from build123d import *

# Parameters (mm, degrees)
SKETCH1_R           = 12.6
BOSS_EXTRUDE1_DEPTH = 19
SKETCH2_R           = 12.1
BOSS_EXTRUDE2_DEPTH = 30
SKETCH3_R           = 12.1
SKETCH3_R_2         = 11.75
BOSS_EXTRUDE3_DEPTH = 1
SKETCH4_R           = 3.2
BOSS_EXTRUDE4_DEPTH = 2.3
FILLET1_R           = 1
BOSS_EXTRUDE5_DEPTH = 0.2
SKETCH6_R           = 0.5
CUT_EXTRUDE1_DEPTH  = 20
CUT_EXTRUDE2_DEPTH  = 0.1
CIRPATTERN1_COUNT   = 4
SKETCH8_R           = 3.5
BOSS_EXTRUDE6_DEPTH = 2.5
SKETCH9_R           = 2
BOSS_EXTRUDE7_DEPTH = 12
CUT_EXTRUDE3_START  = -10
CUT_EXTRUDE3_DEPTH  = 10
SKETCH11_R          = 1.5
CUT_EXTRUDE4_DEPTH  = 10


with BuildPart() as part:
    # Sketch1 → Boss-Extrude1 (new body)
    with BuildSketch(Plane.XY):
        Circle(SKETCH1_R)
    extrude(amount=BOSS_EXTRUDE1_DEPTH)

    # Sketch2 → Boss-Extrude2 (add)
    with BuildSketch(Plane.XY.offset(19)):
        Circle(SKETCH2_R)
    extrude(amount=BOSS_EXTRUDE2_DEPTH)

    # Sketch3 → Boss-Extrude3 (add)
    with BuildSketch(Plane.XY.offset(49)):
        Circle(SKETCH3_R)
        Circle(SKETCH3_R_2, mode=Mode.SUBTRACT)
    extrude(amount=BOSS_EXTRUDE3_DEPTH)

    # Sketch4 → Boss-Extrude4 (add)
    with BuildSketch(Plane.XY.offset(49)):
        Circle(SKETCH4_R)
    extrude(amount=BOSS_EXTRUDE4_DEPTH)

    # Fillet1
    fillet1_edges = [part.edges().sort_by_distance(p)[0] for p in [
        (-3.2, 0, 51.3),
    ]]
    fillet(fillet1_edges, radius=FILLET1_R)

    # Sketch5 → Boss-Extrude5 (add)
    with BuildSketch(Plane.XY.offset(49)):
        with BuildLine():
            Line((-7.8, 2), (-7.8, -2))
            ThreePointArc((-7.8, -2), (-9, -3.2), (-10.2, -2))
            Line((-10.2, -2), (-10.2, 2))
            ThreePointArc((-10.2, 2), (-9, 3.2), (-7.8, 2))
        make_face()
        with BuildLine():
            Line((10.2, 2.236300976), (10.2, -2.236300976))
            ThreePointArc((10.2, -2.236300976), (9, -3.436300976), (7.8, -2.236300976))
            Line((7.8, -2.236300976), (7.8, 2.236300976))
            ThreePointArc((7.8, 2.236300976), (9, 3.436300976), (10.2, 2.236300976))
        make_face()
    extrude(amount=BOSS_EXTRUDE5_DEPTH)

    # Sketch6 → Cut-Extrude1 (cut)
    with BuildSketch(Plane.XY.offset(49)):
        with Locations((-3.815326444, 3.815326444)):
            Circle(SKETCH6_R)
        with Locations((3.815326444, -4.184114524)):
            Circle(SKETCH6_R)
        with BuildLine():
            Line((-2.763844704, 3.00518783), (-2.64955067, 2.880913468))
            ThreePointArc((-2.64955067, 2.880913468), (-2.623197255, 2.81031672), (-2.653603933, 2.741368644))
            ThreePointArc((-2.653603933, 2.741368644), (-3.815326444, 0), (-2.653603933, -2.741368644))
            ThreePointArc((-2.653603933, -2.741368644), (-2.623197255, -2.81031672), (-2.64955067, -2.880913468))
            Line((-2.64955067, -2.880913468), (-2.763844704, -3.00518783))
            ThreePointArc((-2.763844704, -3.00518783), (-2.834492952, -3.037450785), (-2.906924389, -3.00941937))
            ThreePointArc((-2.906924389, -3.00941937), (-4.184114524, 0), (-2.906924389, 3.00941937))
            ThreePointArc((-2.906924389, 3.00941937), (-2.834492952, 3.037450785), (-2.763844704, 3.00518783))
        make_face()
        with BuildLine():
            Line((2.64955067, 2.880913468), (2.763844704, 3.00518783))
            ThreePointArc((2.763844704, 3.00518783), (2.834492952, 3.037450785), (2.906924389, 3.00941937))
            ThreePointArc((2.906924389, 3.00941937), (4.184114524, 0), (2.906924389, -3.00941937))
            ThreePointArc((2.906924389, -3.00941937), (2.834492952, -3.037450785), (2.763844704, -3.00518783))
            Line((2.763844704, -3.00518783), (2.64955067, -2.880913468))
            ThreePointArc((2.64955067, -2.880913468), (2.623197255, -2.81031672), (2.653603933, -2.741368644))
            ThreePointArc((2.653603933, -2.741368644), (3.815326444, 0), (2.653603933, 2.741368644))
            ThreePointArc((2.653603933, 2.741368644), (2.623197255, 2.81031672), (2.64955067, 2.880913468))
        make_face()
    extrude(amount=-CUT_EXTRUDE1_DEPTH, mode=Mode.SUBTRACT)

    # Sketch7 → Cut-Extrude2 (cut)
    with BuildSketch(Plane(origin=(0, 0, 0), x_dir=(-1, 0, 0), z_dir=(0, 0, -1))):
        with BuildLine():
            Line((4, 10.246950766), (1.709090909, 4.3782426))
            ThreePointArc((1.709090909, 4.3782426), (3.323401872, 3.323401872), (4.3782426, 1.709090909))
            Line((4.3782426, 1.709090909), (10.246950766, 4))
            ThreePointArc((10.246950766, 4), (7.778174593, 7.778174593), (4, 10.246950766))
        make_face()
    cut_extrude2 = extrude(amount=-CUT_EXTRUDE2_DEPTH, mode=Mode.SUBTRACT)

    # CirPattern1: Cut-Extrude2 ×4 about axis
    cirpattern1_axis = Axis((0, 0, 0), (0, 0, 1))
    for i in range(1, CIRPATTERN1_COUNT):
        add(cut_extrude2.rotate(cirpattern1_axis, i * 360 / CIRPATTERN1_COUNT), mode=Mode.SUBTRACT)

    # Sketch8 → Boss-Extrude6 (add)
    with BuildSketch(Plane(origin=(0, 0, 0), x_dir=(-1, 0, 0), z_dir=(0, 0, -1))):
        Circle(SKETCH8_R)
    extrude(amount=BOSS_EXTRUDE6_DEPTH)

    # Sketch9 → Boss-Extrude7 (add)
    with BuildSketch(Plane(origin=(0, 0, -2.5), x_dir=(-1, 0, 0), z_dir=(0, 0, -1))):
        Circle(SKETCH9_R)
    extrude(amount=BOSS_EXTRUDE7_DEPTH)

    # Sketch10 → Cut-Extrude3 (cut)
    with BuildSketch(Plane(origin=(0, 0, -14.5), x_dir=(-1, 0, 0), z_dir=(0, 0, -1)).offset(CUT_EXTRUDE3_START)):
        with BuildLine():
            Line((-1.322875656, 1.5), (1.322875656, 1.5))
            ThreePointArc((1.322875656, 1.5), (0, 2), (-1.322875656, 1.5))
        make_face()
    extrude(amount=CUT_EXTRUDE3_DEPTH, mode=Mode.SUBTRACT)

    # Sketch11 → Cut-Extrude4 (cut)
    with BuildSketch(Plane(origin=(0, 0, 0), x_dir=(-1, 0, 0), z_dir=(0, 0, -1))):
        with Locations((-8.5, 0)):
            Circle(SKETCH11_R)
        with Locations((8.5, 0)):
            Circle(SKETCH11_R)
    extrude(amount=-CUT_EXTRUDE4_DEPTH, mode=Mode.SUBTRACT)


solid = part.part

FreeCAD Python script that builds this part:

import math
import FreeCAD as App
import Part
import Sketcher
from FreeCAD import Vector
Q = App.Units.Quantity


def edges_at(feature, points):
    """Names of the edges that pass closest to the given points."""
    edges = feature.Shape.Edges
    near = lambda p: min(range(len(edges)), key=lambda i: edges[i].distToShape(Part.Vertex(*p))[0])
    return sorted({f"Edge{near(p) + 1}" for p in points})

doc = App.newDocument("Part")
params = doc.addObject("Spreadsheet::Sheet", "Params")
for row, (alias, value) in enumerate([
    ("sketch1_diameter", "25.2 mm"),
    ("pad1_length", "19 mm"),
    ("sketch2_diameter", "24.2 mm"),
    ("pad2_length", "30 mm"),
    ("sketch3_diameter", "24.2 mm"),
    ("sketch3_diameter2", "23.5 mm"),
    ("pad3_length", "1 mm"),
    ("sketch4_diameter", "6.4 mm"),
    ("pad4_length", "2.3 mm"),
    ("fillet_radius", "1 mm"),
    ("sketch5_radius", "1.2 mm"),
    ("sketch5_height", "4 mm"),
    ("pad5_length", "0.2 mm"),
    ("sketch6_diameter", "1 mm"),
    ("sketch6_radius", "0.1 mm"),
    ("pocket1_length", "20 mm"),
    ("sketch7_radius", "11 mm"),
    ("sketch7_radius2", "4.7 mm"),
    ("pocket2_length", "0.1 mm"),
    ("sketch8_diameter", "7 mm"),
    ("pad6_length", "2.5 mm"),
    ("sketch9_diameter", "4 mm"),
    ("pad7_length", "12 mm"),
    ("sketch10_radius", "2 mm"),
    ("pocket3_length", "10 mm"),
    ("sketch11_diameter", "3 mm"),
    ("pocket4_length", "10 mm"),
], start=1):
    params.set(f"A{row}", alias)
    params.set(f"B{row}", "=" + value)
    params.setAlias(f"B{row}", alias)

body = doc.addObject("PartDesign::Body", "Body")

# Sketch on XY plane
sketch1 = body.newObject("Sketcher::SketchObject", "Sketch")
sketch1.AttachmentSupport = (doc.getObject("XY_Plane"), [""])
sketch1.MapMode = "FlatFace"
sketch1.addGeometry(Part.Circle(Vector(0, 0, 0), Vector(0, 0, 1), 12.6), False)
sketch1.addConstraint([
    Sketcher.Constraint("Coincident", 0, 3, -1, 1),
    Sketcher.Constraint("Diameter", 0, Q("25.2 mm")),
])
sketch1.setExpression("Constraints[1]", "Params.sketch1_diameter")
pad1 = body.newObject("PartDesign::Pad", "Pad")
pad1.Profile = sketch1
pad1.setExpression("Length", "Params.pad1_length")

# Sketch on XY plane
sketch2 = body.newObject("Sketcher::SketchObject", "Sketch001")
sketch2.AttachmentSupport = (doc.getObject("XY_Plane"), [""])
sketch2.MapMode = "FlatFace"
sketch2.AttachmentOffset = App.Placement(Vector(0, 0, 19), App.Rotation())
sketch2.addGeometry(Part.Circle(Vector(0, 0, 0), Vector(0, 0, 1), 12.1), False)
sketch2.addConstraint([
    Sketcher.Constraint("Coincident", 0, 3, -1, 1),
    Sketcher.Constraint("Diameter", 0, Q("24.2 mm")),
])
sketch2.setExpression("Constraints[1]", "Params.sketch2_diameter")
pad2 = body.newObject("PartDesign::Pad", "Pad001")
pad2.Profile = sketch2
pad2.setExpression("Length", "Params.pad2_length")

# Sketch on XY plane
sketch3 = body.newObject("Sketcher::SketchObject", "Sketch002")
sketch3.AttachmentSupport = (doc.getObject("XY_Plane"), [""])
sketch3.MapMode = "FlatFace"
sketch3.AttachmentOffset = App.Placement(Vector(0, 0, 49), App.Rotation())
sketch3.addGeometry([
    Part.Circle(Vector(0, 0, 0), Vector(0, 0, 1), 12.1),
    Part.Circle(Vector(0, 0, 0), Vector(0, 0, 1), 11.75),
], False)
sketch3.addConstraint([
    Sketcher.Constraint("Coincident", 0, 3, -1, 1),
    Sketcher.Constraint("Coincident", 1, 3, -1, 1),
    Sketcher.Constraint("Diameter", 0, Q("24.2 mm")),
    Sketcher.Constraint("Diameter", 1, Q("23.5 mm")),
])
sketch3.setExpression("Constraints[2]", "Params.sketch3_diameter")
sketch3.setExpression("Constraints[3]", "Params.sketch3_diameter2")
pad3 = body.newObject("PartDesign::Pad", "Pad002")
pad3.Profile = sketch3
pad3.setExpression("Length", "Params.pad3_length")

# Sketch on XY plane
sketch4 = body.newObject("Sketcher::SketchObject", "Sketch003")
sketch4.AttachmentSupport = (doc.getObject("XY_Plane"), [""])
sketch4.MapMode = "FlatFace"
sketch4.AttachmentOffset = App.Placement(Vector(0, 0, 49), App.Rotation())
sketch4.addGeometry(Part.Circle(Vector(0, 0, 0), Vector(0, 0, 1), 3.2), False)
sketch4.addConstraint([
    Sketcher.Constraint("Coincident", 0, 3, -1, 1),
    Sketcher.Constraint("Diameter", 0, Q("6.4 mm")),
])
sketch4.setExpression("Constraints[1]", "Params.sketch4_diameter")
pad4 = body.newObject("PartDesign::Pad", "Pad003")
pad4.Profile = sketch4
pad4.setExpression("Length", "Params.pad4_length")
doc.recompute()

fillet = body.newObject("PartDesign::Fillet", "Fillet")
fillet.Base = (pad4, edges_at(pad4, [(-3.2, 0, 51.3)]))
fillet.setExpression("Radius", "Params.fillet_radius")

# Sketch on XY plane
sketch5 = body.newObject("Sketcher::SketchObject", "Sketch004")
sketch5.AttachmentSupport = (doc.getObject("XY_Plane"), [""])
sketch5.MapMode = "FlatFace"
sketch5.AttachmentOffset = App.Placement(Vector(0, 0, 49), App.Rotation())
sketch5.addGeometry([
    Part.LineSegment(Vector(-7.8, -2, 0), Vector(-7.8, 2, 0)),  # 0
    Part.ArcOfCircle(Part.Circle(Vector(-9, 2, 0), Vector(0, 0, 1), 1.2), math.radians(0), math.radians(180)),  # 1
    Part.LineSegment(Vector(-10.2, 2, 0), Vector(-10.2, -2, 0)),  # 2
    Part.ArcOfCircle(Part.Circle(Vector(-9, -2, 0), Vector(0, 0, 1), 1.2), math.radians(180), math.radians(360)),  # 3
    Part.LineSegment(Vector(10.2, -2.236301, 0), Vector(10.2, 2.236301, 0)),  # 4
    Part.ArcOfCircle(Part.Circle(Vector(9, 2.236301, 0), Vector(0, 0, 1), 1.2), math.radians(0), math.radians(180)),  # 5
    Part.LineSegment(Vector(7.8, 2.236301, 0), Vector(7.8, -2.236301, 0)),  # 6
    Part.ArcOfCircle(Part.Circle(Vector(9, -2.236301, 0), Vector(0, 0, 1), 1.2), math.radians(180), math.radians(360)),  # 7
], False)
sketch5.addConstraint([
    Sketcher.Constraint("Tangent", 0, 2, 1, 1),
    Sketcher.Constraint("Tangent", 1, 2, 2, 1),
    Sketcher.Constraint("Tangent", 2, 2, 3, 1),
    Sketcher.Constraint("Tangent", 3, 2, 0, 1),
    Sketcher.Constraint("Tangent", 4, 2, 5, 1),
    Sketcher.Constraint("Tangent", 5, 2, 6, 1),
    Sketcher.Constraint("Tangent", 6, 2, 7, 1),
    Sketcher.Constraint("Tangent", 7, 2, 4, 1),
    Sketcher.Constraint("Vertical", 0),
    Sketcher.Constraint("Vertical", 2),
    Sketcher.Constraint("Vertical", 4),
    Sketcher.Constraint("Vertical", 6),
    Sketcher.Constraint("Equal", 3, 5),
    Sketcher.Constraint("Radius", 1, Q("1.2 mm")),
    Sketcher.Constraint("DistanceY", 0, 1, 0, 2, Q("4 mm")),
    Sketcher.Constraint("DistanceX", 1, 3, -1, 1, Q("9 mm")),
    Sketcher.Constraint("DistanceY", -1, 1, 1, 3, Q("2 mm")),
    Sketcher.Constraint("DistanceX", -1, 1, 5, 3, Q("9 mm")),
    Sketcher.Constraint("DistanceY", 4, 1, 4, 2, Q("4.472602 mm")),
    Sketcher.Constraint("DistanceY", -1, 1, 5, 3, Q("2.236301 mm")),
])
sketch5.setExpression("Constraints[13]", "Params.sketch5_radius")
sketch5.setExpression("Constraints[14]", "Params.sketch5_height")
pad5 = body.newObject("PartDesign::Pad", "Pad004")
pad5.Profile = sketch5
pad5.setExpression("Length", "Params.pad5_length")

# Sketch on XY plane
sketch6 = body.newObject("Sketcher::SketchObject", "Sketch005")
sketch6.AttachmentSupport = (doc.getObject("XY_Plane"), [""])
sketch6.MapMode = "FlatFace"
sketch6.AttachmentOffset = App.Placement(Vector(0, 0, 49), App.Rotation())
sketch6.addGeometry([
    Part.Circle(Vector(-3.815326, 3.815326, 0), Vector(0, 0, 1), 0.5),  # 0
    Part.Circle(Vector(3.815326, -4.184115, 0), Vector(0, 0, 1), 0.5),  # 1
    Part.LineSegment(Vector(-2.649551, 2.880913, 0), Vector(-2.763845, 3.005188, 0)),  # 2
    Part.ArcOfCircle(Part.Circle(Vector(-2.837449, 2.937494, 0), Vector(0, 0, 1), 0.1), math.radians(42.60447), math.radians(134.007505)),  # 3
    Part.ArcOfCircle(Part.Circle(Vector(0, 0, 0), Vector(0, 0, 1), 4.184115), math.radians(134.007505), math.radians(225.992495)),  # 4
    Part.ArcOfCircle(Part.Circle(Vector(-2.837449, -2.937494, 0), Vector(0, 0, 1), 0.1), math.radians(-134.007505), math.radians(-42.60447)),  # 5
    Part.LineSegment(Vector(-2.763845, -3.005188, 0), Vector(-2.649551, -2.880913, 0)),  # 6
    Part.ArcOfCircle(Part.Circle(Vector(-2.723155, -2.81322, 0), Vector(0, 0, 1), 0.1), math.radians(-42.60447), math.radians(45.931997)),  # 7
    Part.ArcOfCircle(Part.Circle(Vector(0, 0, 0), Vector(0, 0, 1), 3.815326), math.radians(134.068002), math.radians(225.931998)),  # 8
    Part.ArcOfCircle(Part.Circle(Vector(-2.723155, 2.81322, 0), Vector(0, 0, 1), 0.1), math.radians(-45.931997), math.radians(42.60447)),  # 9
    Part.LineSegment(Vector(2.763845, 3.005188, 0), Vector(2.649551, 2.880913, 0)),  # 10
    Part.ArcOfCircle(Part.Circle(Vector(2.723155, 2.81322, 0), Vector(0, 0, 1), 0.1), math.radians(137.39553), math.radians(225.931997)),  # 11
    Part.ArcOfCircle(Part.Circle(Vector(0, 0, 0), Vector(0, 0, 1), 3.815326), math.radians(-45.931998), math.radians(45.931998)),  # 12
    Part.ArcOfCircle(Part.Circle(Vector(2.723155, -2.81322, 0), Vector(0, 0, 1), 0.1), math.radians(134.068003), math.radians(222.60447)),  # 13
    Part.LineSegment(Vector(2.649551, -2.880913, 0), Vector(2.763845, -3.005188, 0)),  # 14
    Part.ArcOfCircle(Part.Circle(Vector(2.837449, -2.937494, 0), Vector(0, 0, 1), 0.1), math.radians(-137.39553), math.radians(-45.992495)),  # 15
    Part.ArcOfCircle(Part.Circle(Vector(0, 0, 0), Vector(0, 0, 1), 4.184115), math.radians(-45.992495), math.radians(45.992495)),  # 16
    Part.ArcOfCircle(Part.Circle(Vector(2.837449, 2.937494, 0), Vector(0, 0, 1), 0.1), math.radians(45.992495), math.radians(137.39553)),  # 17
], False)
sketch6.addConstraint([
    Sketcher.Constraint("Tangent", 2, 2, 3, 1),
    Sketcher.Constraint("Tangent", 3, 2, 4, 1),
    Sketcher.Constraint("Tangent", 4, 2, 5, 1),
    Sketcher.Constraint("Tangent", 5, 2, 6, 1),
    Sketcher.Constraint("Tangent", 6, 2, 7, 1),
    Sketcher.Constraint("Tangent", 7, 2, 8, 2),
    Sketcher.Constraint("Tangent", 8, 1, 9, 1),
    Sketcher.Constraint("Tangent", 9, 2, 2, 1),
    Sketcher.Constraint("Tangent", 10, 2, 11, 1),
    Sketcher.Constraint("Tangent", 11, 2, 12, 2),
    Sketcher.Constraint("Tangent", 12, 1, 13, 1),
    Sketcher.Constraint("Tangent", 13, 2, 14, 1),
    Sketcher.Constraint("Tangent", 14, 2, 15, 1),
    Sketcher.Constraint("Tangent", 15, 2, 16, 1),
    Sketcher.Constraint("Tangent", 16, 2, 17, 1),
    Sketcher.Constraint("Tangent", 17, 2, 10, 1),
    Sketcher.Constraint("Coincident", 4, 3, -1, 1),
    Sketcher.Constraint("Coincident", 8, 3, -1, 1),
    Sketcher.Constraint("Coincident", 12, 3, -1, 1),
    Sketcher.Constraint("Coincident", 16, 3, -1, 1),
    Sketcher.Constraint("Equal", 0, 1),
    Sketcher.Constraint("Equal", 3, 5),
    Sketcher.Constraint("Equal", 5, 7),
    Sketcher.Constraint("Equal", 7, 9),
    Sketcher.Constraint("Equal", 9, 11),
    Sketcher.Constraint("Equal", 8, 12),
    Sketcher.Constraint("Equal", 11, 13),
    Sketcher.Constraint("Equal", 13, 15),
    Sketcher.Constraint("Equal", 4, 16),
    Sketcher.Constraint("Equal", 15, 17),
    Sketcher.Constraint("Symmetric", 6, 2, 10, 2, -1, 1),
    Sketcher.Constraint("Symmetric", 9, 2, 13, 2, -1, 1),
    Sketcher.Constraint("Symmetric", 9, 2, 10, 2, -2),
    Sketcher.Constraint("Diameter", 0, Q("1 mm")),
    Sketcher.Constraint("Radius", 3, Q("0.1 mm")),
    Sketcher.Constraint("Radius", 4, Q("4.184115 mm")),
    Sketcher.Constraint("Radius", 8, Q("3.815326 mm")),
    Sketcher.Constraint("DistanceY", 9, 3, 3, 2, Q("0.196199 mm")),
    Sketcher.Constraint("DistanceY", 1, 3, 13, 2, Q("1.303201 mm")),
    Sketcher.Constraint("DistanceX", 3, 3, -1, 1, Q("2.837449 mm")),
    Sketcher.Constraint("DistanceY", 1, 3, 0, 3, Q("7.999441 mm")),
    Sketcher.Constraint("DistanceX", 7, 3, 1, 3, Q("6.538482 mm")),
    Sketcher.Constraint("DistanceX", 0, 3, 7, 3, Q("1.092171 mm")),
])
sketch6.setExpression("Constraints[33]", "Params.sketch6_diameter")
sketch6.setExpression("Constraints[34]", "Params.sketch6_radius")
pocket1 = body.newObject("PartDesign::Pocket", "Pocket")
pocket1.Profile = sketch6
pocket1.setExpression("Length", "Params.pocket1_length")

# Sketch on XY plane
sketch7 = body.newObject("Sketcher::SketchObject", "Sketch006")
sketch7.AttachmentSupport = (doc.getObject("XY_Plane"), [""])
sketch7.MapMode = "FlatFace"
sketch7.addGeometry([
    Part.LineSegment(Vector(-4, 10.246951, 0), Vector(-1.709091, 4.378243, 0)),
    Part.ArcOfCircle(Part.Circle(Vector(0, 0, 0), Vector(0, 0, 1), 4.7), math.radians(111.323686), math.radians(158.676314)),
    Part.LineSegment(Vector(-4.378243, 1.709091, 0), Vector(-10.246951, 4, 0)),
    Part.ArcOfCircle(Part.Circle(Vector(0, 0, 0), Vector(0, 0, 1), 11), math.radians(111.323686), math.radians(158.676314)),
], False)
sketch7.addConstraint([
    Sketcher.Constraint("Coincident", 0, 2, 1, 1),
    Sketcher.Constraint("Coincident", 1, 2, 2, 1),
    Sketcher.Constraint("Coincident", 2, 2, 3, 2),
    Sketcher.Constraint("Coincident", 3, 1, 0, 1),
    Sketcher.Constraint("Coincident", 1, 3, -1, 1),
    Sketcher.Constraint("Coincident", 3, 3, -1, 1),
    Sketcher.Constraint("Radius", 3, Q("11 mm")),
    Sketcher.Constraint("Radius", 1, Q("4.7 mm")),
    Sketcher.Constraint("DistanceY", -1, 1, 2, 2, Q("4 mm")),
    Sketcher.Constraint("DistanceX", 3, 1, -1, 1, Q("4 mm")),
    Sketcher.Constraint("DistanceX", 0, 2, -1, 1, Q("1.709091 mm")),
    Sketcher.Constraint("DistanceY", -1, 1, 1, 2, Q("1.709091 mm")),
])
sketch7.setExpression("Constraints[6]", "Params.sketch7_radius")
sketch7.setExpression("Constraints[7]", "Params.sketch7_radius2")
pocket2 = body.newObject("PartDesign::Pocket", "Pocket001")
pocket2.Profile = sketch7
pocket2.setExpression("Length", "Params.pocket2_length")
pocket2.Reversed = True
doc.recompute()

polarpattern = body.newObject("PartDesign::PolarPattern", "PolarPattern")
polarpattern.Originals = [pocket2]
polarpattern.Axis = (doc.getObject("Z_Axis"), [""])
polarpattern.Angle = 360
polarpattern.Occurrences = 4
body.Tip = polarpattern

# Sketch on XY plane
sketch8 = body.newObject("Sketcher::SketchObject", "Sketch007")
sketch8.AttachmentSupport = (doc.getObject("XY_Plane"), [""])
sketch8.MapMode = "FlatFace"
sketch8.addGeometry(Part.Circle(Vector(0, 0, 0), Vector(0, 0, 1), 3.5), False)
sketch8.addConstraint([
    Sketcher.Constraint("Coincident", 0, 3, -1, 1),
    Sketcher.Constraint("Diameter", 0, Q("7 mm")),
])
sketch8.setExpression("Constraints[1]", "Params.sketch8_diameter")
pad6 = body.newObject("PartDesign::Pad", "Pad005")
pad6.Profile = sketch8
pad6.setExpression("Length", "Params.pad6_length")
pad6.Reversed = True

# Sketch on XY plane
sketch9 = body.newObject("Sketcher::SketchObject", "Sketch008")
sketch9.AttachmentSupport = (doc.getObject("XY_Plane"), [""])
sketch9.MapMode = "FlatFace"
sketch9.AttachmentOffset = App.Placement(Vector(0, 0, -2.5), App.Rotation())
sketch9.addGeometry(Part.Circle(Vector(0, 0, 0), Vector(0, 0, 1), 2), False)
sketch9.addConstraint([
    Sketcher.Constraint("Coincident", 0, 3, -1, 1),
    Sketcher.Constraint("Diameter", 0, Q("4 mm")),
])
sketch9.setExpression("Constraints[1]", "Params.sketch9_diameter")
pad7 = body.newObject("PartDesign::Pad", "Pad006")
pad7.Profile = sketch9
pad7.setExpression("Length", "Params.pad7_length")
pad7.Reversed = True

# Sketch on XY plane
sketch10 = body.newObject("Sketcher::SketchObject", "Sketch009")
sketch10.AttachmentSupport = (doc.getObject("XY_Plane"), [""])
sketch10.MapMode = "FlatFace"
sketch10.AttachmentOffset = App.Placement(Vector(0, 0, -4.5), App.Rotation())
sketch10.addGeometry([
    Part.LineSegment(Vector(1.322876, 1.5, 0), Vector(-1.322876, 1.5, 0)),
    Part.ArcOfCircle(Part.Circle(Vector(0, 0, 0), Vector(0, 0, 1), 2), math.radians(48.590378), math.radians(131.409622)),
], False)
sketch10.addConstraint([
    Sketcher.Constraint("Coincident", 0, 1, 1, 1),
    Sketcher.Constraint("Coincident", 1, 2, 0, 2),
    Sketcher.Constraint("Horizontal", 0),
    Sketcher.Constraint("Coincident", 1, 3, -1, 1),
    Sketcher.Constraint("Radius", 1, Q("2 mm")),
    Sketcher.Constraint("DistanceY", -1, 1, 0, 1, Q("1.5 mm")),
])
sketch10.setExpression("Constraints[4]", "Params.sketch10_radius")
pocket3 = body.newObject("PartDesign::Pocket", "Pocket002")
pocket3.Profile = sketch10
pocket3.setExpression("Length", "Params.pocket3_length")

# Sketch on XY plane
sketch11 = body.newObject("Sketcher::SketchObject", "Sketch010")
sketch11.AttachmentSupport = (doc.getObject("XY_Plane"), [""])
sketch11.MapMode = "FlatFace"
sketch11.addGeometry([
    Part.Circle(Vector(8.5, 0, 0), Vector(0, 0, 1), 1.5),
    Part.Circle(Vector(-8.5, 0, 0), Vector(0, 0, 1), 1.5),
], False)
sketch11.addConstraint([
    Sketcher.Constraint("Equal", 0, 1),
    Sketcher.Constraint("Symmetric", 0, 3, 1, 3, -1, 1),
    Sketcher.Constraint("PointOnObject", 0, 3, -1),
    Sketcher.Constraint("Diameter", 0, Q("3 mm")),
    Sketcher.Constraint("DistanceX", 1, 3, 0, 3, Q("17 mm")),
])
sketch11.setExpression("Constraints[3]", "Params.sketch11_diameter")
pocket4 = body.newObject("PartDesign::Pocket", "Pocket003")
pocket4.Profile = sketch11
pocket4.setExpression("Length", "Params.pocket4_length")
pocket4.Reversed = True

doc.recompute()
